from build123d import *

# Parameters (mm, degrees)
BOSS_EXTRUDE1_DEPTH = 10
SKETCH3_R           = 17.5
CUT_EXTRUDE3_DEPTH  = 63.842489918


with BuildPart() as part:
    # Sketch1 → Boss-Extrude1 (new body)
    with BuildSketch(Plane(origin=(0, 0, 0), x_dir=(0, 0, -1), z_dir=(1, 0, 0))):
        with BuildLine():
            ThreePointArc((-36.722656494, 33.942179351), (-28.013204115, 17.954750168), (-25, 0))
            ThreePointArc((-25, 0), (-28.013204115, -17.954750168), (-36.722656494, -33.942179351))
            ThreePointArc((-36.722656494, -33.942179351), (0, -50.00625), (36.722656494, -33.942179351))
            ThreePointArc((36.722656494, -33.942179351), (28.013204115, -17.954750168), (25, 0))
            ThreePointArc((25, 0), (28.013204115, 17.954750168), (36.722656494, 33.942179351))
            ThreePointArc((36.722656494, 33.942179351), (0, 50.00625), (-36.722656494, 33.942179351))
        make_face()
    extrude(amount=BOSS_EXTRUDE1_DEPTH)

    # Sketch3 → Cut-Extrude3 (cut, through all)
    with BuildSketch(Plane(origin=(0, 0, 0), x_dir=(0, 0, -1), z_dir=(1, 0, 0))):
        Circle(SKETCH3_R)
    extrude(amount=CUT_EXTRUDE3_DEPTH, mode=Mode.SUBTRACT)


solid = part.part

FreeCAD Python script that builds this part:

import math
import FreeCAD as App
import Part
import Sketcher

doc = App.newDocument("Part")
body = doc.addObject("PartDesign::Body", "Body")

sketch1 = body.newObject("Sketcher::SketchObject", "Sketch")
sketch1.AttachmentSupport = (doc.getObject("YZ_Plane"), [""])
sketch1.MapMode = "FlatFace"
sketch1.addGeometry(Part.ArcOfCircle(Part.Circle(App.Vector(0, 80, 0), App.Vector(0, 0, 1), 55), math.radians(-90), math.radians(-52)), False)
sketch1.addGeometry(Part.ArcOfCircle(Part.Circle(App.Vector(0, 80, 0), App.Vector(0, 0, 1), 55), math.radians(-128), math.radians(-90)), False)
sketch1.addGeometry(Part.ArcOfCircle(Part.Circle(App.Vector(0, 0, 0), App.Vector(0, 0, 1), 50), math.radians(133), math.radians(227)), False)
sketch1.addGeometry(Part.ArcOfCircle(Part.Circle(App.Vector(0, -80, 0), App.Vector(0, 0, 1), 55), math.radians(90), math.radians(128)), False)
sketch1.addGeometry(Part.ArcOfCircle(Part.Circle(App.Vector(0, -80, 0), App.Vector(0, 0, 1), 55), math.radians(52), math.radians(90)), False)
sketch1.addGeometry(Part.ArcOfCircle(Part.Circle(App.Vector(0, 0, 0), App.Vector(0, 0, 1), 50), math.radians(-47), math.radians(47)), False)
sketch1.addConstraint(Sketcher.Constraint("Tangent", 0, 1, 1, 2))
sketch1.addConstraint(Sketcher.Constraint("Coincident", 1, 1, 2, 1))
sketch1.addConstraint(Sketcher.Constraint("Coincident", 2, 2, 3, 2))
sketch1.addConstraint(Sketcher.Constraint("Tangent", 3, 1, 4, 2))
sketch1.addConstraint(Sketcher.Constraint("Coincident", 4, 1, 5, 1))
sketch1.addConstraint(Sketcher.Constraint("Coincident", 5, 2, 0, 2))
sketch1.addConstraint(Sketcher.Constraint("Coincident", 2, 3, -1, 1))
sketch1.addConstraint(Sketcher.Constraint("Coincident", 5, 3, -1, 1))
sketch1.addConstraint(Sketcher.Constraint("Equal", 0, 1))
sketch1.addConstraint(Sketcher.Constraint("Equal", 1, 3))
sketch1.addConstraint(Sketcher.Constraint("Equal", 3, 4))
sketch1.addConstraint(Sketcher.Constraint("Equal", 2, 5))
sketch1.addConstraint(Sketcher.Constraint("Symmetric", 0, 3, 3, 3, -1, 1))
sketch1.addConstraint(Sketcher.Constraint("PointOnObject", 0, 3, -2))
sketch1.addConstraint(Sketcher.Constraint("PointOnObject", 0, 1, -2))
sketch1.addConstraint(Sketcher.Constraint("PointOnObject", 3, 1, -2))
sketch1.addConstraint(Sketcher.Constraint("Radius", 0, 55.0))
sketch1.addConstraint(Sketcher.Constraint("DistanceY", -1, 1, 0, 3, 80.0))
sketch1.addConstraint(Sketcher.Constraint("Radius", 2, 50.00625))
pad1 = body.newObject("PartDesign::Pad", "Pad")
pad1.Profile = sketch1
pad1.Length = 10

sketch2 = body.newObject("Sketcher::SketchObject", "Sketch001")
sketch2.AttachmentSupport = (doc.getObject("YZ_Plane"), [""])
sketch2.MapMode = "FlatFace"
sketch2.addGeometry(Part.Circle(App.Vector(0, 0, 0), App.Vector(0, 0, 1), 18), False)
sketch2.addConstraint(Sketcher.Constraint("Coincident", 0, 3, -1, 1))
sketch2.addConstraint(Sketcher.Constraint("Diameter", 0, 35.0))
pocket1 = body.newObject("PartDesign::Pocket", "Pocket")
pocket1.Profile = sketch2
pocket1.Type = "ThroughAll"
pocket1.Reversed = True

doc.recompute()
